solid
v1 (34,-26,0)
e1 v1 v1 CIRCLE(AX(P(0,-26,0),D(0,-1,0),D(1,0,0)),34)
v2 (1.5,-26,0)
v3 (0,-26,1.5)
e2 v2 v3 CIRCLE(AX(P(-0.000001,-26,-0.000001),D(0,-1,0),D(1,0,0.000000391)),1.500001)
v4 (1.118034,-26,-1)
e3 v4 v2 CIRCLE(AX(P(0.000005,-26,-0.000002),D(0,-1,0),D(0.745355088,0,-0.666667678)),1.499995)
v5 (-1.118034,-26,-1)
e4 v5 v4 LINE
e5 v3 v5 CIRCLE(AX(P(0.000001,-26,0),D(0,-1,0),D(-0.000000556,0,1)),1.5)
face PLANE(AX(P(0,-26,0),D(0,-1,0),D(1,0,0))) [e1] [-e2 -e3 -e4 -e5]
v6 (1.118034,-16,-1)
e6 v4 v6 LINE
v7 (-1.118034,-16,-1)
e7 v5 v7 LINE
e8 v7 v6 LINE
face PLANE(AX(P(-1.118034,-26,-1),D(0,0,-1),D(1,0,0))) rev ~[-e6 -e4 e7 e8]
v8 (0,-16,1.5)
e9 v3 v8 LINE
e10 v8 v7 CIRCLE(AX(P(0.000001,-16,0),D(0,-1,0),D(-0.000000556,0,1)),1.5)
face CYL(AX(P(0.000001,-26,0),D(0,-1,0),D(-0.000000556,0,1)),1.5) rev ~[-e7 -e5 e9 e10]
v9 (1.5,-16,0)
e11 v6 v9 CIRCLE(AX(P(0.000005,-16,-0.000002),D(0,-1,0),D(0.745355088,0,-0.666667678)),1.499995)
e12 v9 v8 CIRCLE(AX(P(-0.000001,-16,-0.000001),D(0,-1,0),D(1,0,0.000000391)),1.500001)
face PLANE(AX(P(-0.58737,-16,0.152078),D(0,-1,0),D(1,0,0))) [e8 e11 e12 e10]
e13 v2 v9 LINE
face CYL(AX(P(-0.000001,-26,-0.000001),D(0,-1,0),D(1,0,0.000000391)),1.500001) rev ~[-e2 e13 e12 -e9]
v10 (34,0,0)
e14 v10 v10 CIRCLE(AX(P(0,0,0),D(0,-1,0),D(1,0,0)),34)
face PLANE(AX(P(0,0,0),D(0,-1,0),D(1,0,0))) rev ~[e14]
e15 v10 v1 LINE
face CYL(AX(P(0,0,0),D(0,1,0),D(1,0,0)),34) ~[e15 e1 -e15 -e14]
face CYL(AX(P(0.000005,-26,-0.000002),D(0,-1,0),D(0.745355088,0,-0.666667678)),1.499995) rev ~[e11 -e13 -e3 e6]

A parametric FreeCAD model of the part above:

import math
import FreeCAD as App
import Part
import Sketcher
from FreeCAD import Vector
Q = App.Units.Quantity

doc = App.newDocument("Part")
body = doc.addObject("PartDesign::Body", "Body")

# Sketch on XZ plane
sketch1 = doc.addObject("Sketcher::SketchObject", "Sketch")
body.addObject(sketch1)
sketch1.AttachmentSupport = (doc.XZ_Plane, [""])
sketch1.MapMode = "FlatFace"
sketch1.addGeometry(Part.Circle(Vector(0, 0, 0), Vector(0, 0, 1), 34), False)
sketch1.addConstraint(Sketcher.Constraint("Coincident", 0, 3, -1, 1))
sketch1.addConstraint(Sketcher.Constraint("Diameter", 0, Q("68 mm")))
pad1 = doc.addObject("PartDesign::Pad", "Pad")
body.addObject(pad1)
pad1.Profile = sketch1
pad1.Length = 26

# Sketch on XZ plane
sketch2 = doc.addObject("Sketcher::SketchObject", "Sketch001")
body.addObject(sketch2)
sketch2.AttachmentSupport = (doc.XZ_Plane, [""])
sketch2.MapMode = "FlatFace"
sketch2.AttachmentOffset = App.Placement(Vector(0, 0, 26), App.Rotation())
sketch2.addGeometry(Part.ArcOfCircle(Part.Circle(Vector(0.000001, 0, 0), Vector(0, 0, 1), 1.5), math.radians(90.000032), math.radians(221.810283)), False)
sketch2.addGeometry(Part.LineSegment(Vector(-1.118034, -1, 0), Vector(1.118034, -1, 0)), False)
sketch2.addGeometry(Part.ArcOfCircle(Part.Circle(Vector(0.000005, -0.000002, 0), Vector(0, 0, 1), 1.499995), math.radians(-41.810393), math.radians(0.000079)), False)
sketch2.addGeometry(Part.ArcOfCircle(Part.Circle(Vector(-0.000001, -0.000001, 0), Vector(0, 0, 1), 1.500001), math.radians(0.000022), math.radians(89.999978)), False)
sketch2.addConstraint(Sketcher.Constraint("Coincident", 0, 2, 1, 1))
sketch2.addConstraint(Sketcher.Constraint("Coincident", 1, 2, 2, 1))
sketch2.addConstraint(Sketcher.Constraint("Tangent", 2, 2, 3, 1))
sketch2.addConstraint(Sketcher.Constraint("Tangent", 3, 2, 0, 1))
sketch2.addConstraint(Sketcher.Constraint("Horizontal", 1))
sketch2.addConstraint(Sketcher.Constraint("Coincident", 0, 3, -1, 1))
sketch2.addConstraint(Sketcher.Constraint("Coincident", 2, 3, -1, 1))
sketch2.addConstraint(Sketcher.Constraint("PointOnObject", 2, 2, -1))
sketch2.addConstraint(Sketcher.Constraint("PointOnObject", 3, 2, -2))
sketch2.addConstraint(Sketcher.Constraint("Radius", 0, Q("1.5 mm")))
sketch2.addConstraint(Sketcher.Constraint("DistanceY", 0, 2, -1, 1, Q("1 mm")))
pocket1 = doc.addObject("PartDesign::Pocket", "Pocket")
body.addObject(pocket1)
pocket1.Profile = sketch2
pocket1.Length = 10

doc.recompute()
